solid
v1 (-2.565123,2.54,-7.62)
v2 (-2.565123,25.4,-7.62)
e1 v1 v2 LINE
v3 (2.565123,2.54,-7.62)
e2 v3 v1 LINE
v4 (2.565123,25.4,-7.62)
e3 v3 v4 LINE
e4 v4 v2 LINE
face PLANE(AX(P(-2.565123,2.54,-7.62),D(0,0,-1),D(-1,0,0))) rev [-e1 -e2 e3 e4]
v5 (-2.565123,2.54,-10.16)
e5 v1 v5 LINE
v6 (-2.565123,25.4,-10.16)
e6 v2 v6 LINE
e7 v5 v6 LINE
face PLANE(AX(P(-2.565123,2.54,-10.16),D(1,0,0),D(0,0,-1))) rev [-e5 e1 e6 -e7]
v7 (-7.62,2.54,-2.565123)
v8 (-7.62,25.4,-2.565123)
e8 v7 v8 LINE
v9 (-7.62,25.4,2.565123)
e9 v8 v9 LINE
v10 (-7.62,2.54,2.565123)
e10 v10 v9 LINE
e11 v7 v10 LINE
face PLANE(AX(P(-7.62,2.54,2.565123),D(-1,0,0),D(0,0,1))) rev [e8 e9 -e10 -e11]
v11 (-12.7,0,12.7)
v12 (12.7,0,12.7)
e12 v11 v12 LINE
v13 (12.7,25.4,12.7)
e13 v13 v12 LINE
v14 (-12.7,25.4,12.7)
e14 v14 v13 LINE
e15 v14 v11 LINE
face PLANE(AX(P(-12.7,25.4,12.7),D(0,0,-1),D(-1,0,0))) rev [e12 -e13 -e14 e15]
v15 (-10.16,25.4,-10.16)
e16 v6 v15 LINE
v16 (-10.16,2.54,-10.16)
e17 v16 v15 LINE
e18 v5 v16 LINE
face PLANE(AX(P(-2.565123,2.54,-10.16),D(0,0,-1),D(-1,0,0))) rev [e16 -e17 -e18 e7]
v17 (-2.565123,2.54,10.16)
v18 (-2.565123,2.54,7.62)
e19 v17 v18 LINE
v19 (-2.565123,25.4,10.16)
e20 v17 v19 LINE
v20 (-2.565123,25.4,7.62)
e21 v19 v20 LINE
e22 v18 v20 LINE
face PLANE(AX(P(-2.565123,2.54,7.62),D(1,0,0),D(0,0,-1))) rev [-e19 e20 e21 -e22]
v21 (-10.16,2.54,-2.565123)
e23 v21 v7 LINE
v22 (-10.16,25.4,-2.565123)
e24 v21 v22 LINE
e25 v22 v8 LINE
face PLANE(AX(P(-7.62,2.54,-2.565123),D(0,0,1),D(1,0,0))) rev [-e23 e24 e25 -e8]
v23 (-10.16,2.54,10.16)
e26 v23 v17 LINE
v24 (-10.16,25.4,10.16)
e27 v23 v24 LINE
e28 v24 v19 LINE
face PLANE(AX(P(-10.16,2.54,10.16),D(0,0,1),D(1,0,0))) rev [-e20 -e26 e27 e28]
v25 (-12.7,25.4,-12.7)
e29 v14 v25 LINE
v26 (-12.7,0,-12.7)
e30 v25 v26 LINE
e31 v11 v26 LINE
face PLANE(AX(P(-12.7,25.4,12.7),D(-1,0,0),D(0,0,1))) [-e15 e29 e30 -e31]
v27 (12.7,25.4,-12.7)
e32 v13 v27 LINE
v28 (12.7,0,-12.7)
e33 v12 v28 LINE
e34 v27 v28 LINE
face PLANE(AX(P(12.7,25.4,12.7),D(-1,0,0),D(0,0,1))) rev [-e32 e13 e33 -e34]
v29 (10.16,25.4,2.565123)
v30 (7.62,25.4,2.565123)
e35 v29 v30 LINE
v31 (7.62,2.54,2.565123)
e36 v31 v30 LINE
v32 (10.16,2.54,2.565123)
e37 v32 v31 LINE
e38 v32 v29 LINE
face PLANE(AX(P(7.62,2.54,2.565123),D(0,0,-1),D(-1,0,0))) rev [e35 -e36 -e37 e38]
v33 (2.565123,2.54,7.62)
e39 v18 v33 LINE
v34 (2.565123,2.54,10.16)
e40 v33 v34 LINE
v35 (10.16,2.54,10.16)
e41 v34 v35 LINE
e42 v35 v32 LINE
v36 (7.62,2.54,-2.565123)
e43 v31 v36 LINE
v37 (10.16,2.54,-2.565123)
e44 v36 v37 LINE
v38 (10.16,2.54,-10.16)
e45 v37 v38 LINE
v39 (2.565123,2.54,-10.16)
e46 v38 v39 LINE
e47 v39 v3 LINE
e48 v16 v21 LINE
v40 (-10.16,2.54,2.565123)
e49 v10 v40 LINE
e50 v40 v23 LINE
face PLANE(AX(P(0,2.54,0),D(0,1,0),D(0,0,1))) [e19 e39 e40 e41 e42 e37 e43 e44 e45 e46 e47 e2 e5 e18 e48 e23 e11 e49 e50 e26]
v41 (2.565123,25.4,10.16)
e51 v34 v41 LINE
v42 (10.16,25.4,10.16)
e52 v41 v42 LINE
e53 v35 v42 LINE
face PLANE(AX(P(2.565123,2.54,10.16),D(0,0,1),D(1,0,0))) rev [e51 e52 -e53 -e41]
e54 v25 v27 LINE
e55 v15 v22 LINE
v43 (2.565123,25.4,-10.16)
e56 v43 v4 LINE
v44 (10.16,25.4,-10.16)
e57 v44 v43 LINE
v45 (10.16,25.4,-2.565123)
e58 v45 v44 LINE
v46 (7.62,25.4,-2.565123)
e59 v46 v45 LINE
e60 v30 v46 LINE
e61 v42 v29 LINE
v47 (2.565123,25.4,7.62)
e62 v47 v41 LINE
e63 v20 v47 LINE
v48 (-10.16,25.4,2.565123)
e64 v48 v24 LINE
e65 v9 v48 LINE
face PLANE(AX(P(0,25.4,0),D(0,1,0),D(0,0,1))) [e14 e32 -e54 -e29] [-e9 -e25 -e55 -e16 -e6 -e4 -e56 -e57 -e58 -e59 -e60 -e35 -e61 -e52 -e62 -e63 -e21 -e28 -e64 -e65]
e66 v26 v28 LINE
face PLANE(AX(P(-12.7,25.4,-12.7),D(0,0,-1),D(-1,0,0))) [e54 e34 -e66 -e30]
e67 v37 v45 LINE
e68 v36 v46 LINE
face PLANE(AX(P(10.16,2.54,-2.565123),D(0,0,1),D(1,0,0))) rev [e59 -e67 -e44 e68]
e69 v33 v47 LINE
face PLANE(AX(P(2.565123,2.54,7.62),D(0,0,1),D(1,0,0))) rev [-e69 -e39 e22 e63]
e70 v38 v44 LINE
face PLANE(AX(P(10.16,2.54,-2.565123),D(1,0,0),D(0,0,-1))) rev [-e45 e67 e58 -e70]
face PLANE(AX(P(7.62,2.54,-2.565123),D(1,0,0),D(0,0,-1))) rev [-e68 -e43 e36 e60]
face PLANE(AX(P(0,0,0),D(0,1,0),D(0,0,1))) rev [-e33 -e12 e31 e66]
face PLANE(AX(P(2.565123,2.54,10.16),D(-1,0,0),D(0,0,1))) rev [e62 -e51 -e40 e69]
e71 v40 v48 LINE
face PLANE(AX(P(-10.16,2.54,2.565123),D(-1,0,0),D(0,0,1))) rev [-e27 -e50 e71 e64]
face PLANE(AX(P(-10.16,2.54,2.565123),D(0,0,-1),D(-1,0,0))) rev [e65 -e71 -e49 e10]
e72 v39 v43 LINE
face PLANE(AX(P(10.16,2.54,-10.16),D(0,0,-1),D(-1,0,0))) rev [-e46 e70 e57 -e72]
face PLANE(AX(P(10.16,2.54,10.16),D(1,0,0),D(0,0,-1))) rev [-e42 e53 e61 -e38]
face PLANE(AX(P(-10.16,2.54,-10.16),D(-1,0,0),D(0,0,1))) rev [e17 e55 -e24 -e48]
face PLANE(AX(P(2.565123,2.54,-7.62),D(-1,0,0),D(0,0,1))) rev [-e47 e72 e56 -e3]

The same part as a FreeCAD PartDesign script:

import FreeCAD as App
import Part
import Sketcher
from FreeCAD import Vector
Q = App.Units.Quantity


def add_polygon(sketch, points):
    """Adds a closed chain of lines whose ends are joined by coincident constraints."""
    first, n = sketch.GeometryCount, len(points)
    for a, b in zip(points, points[1:] + points[:1]):
        sketch.addGeometry(Part.LineSegment(App.Vector(*a, 0), App.Vector(*b, 0)), False)
    for i in range(n):
        sketch.addConstraint(Sketcher.Constraint("Coincident", first + i, 2, first + (i + 1) % n, 1))

doc = App.newDocument("Part")
body = doc.addObject("PartDesign::Body", "Body")

# Sketch on XZ plane
sketch1 = body.newObject("Sketcher::SketchObject", "Sketch")
sketch1.AttachmentSupport = (doc.getObject("XZ_Plane"), [""])
sketch1.MapMode = "FlatFace"
add_polygon(sketch1, [(-12.7, -12.7), (-12.7, 12.7), (12.7, 12.7), (12.7, -12.7)])  # lines 0-3
sketch1.addConstraint([
    Sketcher.Constraint("Vertical", 0),
    Sketcher.Constraint("Horizontal", 1),
    Sketcher.Constraint("Vertical", 2),
    Sketcher.Constraint("Horizontal", 3),
    Sketcher.Constraint("Symmetric", 0, 2, 2, 2, -1, 1),
    Sketcher.Constraint("Equal", 3, 0),
    Sketcher.Constraint("DistanceX", 1, 1, 1, 2, Q("1 in")),
])
pad1 = body.newObject("PartDesign::Pad", "Pad")
pad1.Profile = sketch1
pad1.Length = Q("1 in")
pad1.Reversed = True

# Sketch on XZ plane
sketch2 = body.newObject("Sketcher::SketchObject", "Sketch001")
sketch2.AttachmentSupport = (doc.getObject("XZ_Plane"), [""])
sketch2.MapMode = "FlatFace"
sketch2.AttachmentOffset = App.Placement(Vector(0, 0, -1 * 25.4), App.Rotation())
add_polygon(sketch2, [(7.62, -2.565123), (10.16, -2.565123), (10.16, -10.16), (2.565123, -10.16), (2.565123, -7.62), (-2.565123, -7.62), (-2.565123, -10.16), (-10.16, -10.16), (-10.16, -2.565123), (-7.62, -2.565123), (-7.62, 2.565123), (-10.16, 2.565123), (-10.16, 10.16), (-2.565123, 10.16), (-2.565123, 7.62), (2.565123, 7.62), (2.565123, 10.16), (10.16, 10.16), (10.16, 2.565123), (7.62, 2.565123)])  # lines 0-19
sketch2.addConstraint([
    Sketcher.Constraint("Horizontal", 0),
    Sketcher.Constraint("Vertical", 1),
    Sketcher.Constraint("Horizontal", 2),
    Sketcher.Constraint("Vertical", 3),
    Sketcher.Constraint("Horizontal", 4),
    Sketcher.Constraint("Vertical", 5),
    Sketcher.Constraint("Horizontal", 6),
    Sketcher.Constraint("Vertical", 7),
    Sketcher.Constraint("Horizontal", 8),
    Sketcher.Constraint("Vertical", 9),
    Sketcher.Constraint("Horizontal", 10),
    Sketcher.Constraint("Vertical", 11),
    Sketcher.Constraint("Horizontal", 12),
    Sketcher.Constraint("Vertical", 13),
    Sketcher.Constraint("Horizontal", 14),
    Sketcher.Constraint("Vertical", 15),
    Sketcher.Constraint("Horizontal", 16),
    Sketcher.Constraint("Vertical", 17),
    Sketcher.Constraint("Horizontal", 18),
    Sketcher.Constraint("Vertical", 19),
    Sketcher.Constraint("Symmetric", 0, 2, 10, 2, -1, 1),
    Sketcher.Constraint("Symmetric", 2, 2, 12, 2, -1, 1),
    Sketcher.Constraint("Symmetric", 4, 2, 14, 2, -1, 1),
    Sketcher.Constraint("Symmetric", 6, 2, 16, 2, -1, 1),
    Sketcher.Constraint("Symmetric", 8, 2, 18, 2, -1, 1),
    Sketcher.Constraint("Symmetric", 2, 2, 5, 2, -2),
    Sketcher.Constraint("Symmetric", 0, 2, 7, 2, -2),
    Sketcher.Constraint("Equal", 16, 1),
    Sketcher.Constraint("Equal", 18, 3),
    Sketcher.Constraint("Equal", 14, 9),
    Sketcher.Constraint("DistanceX", 0, 1, 0, 2, Q("0.1 in")),
    Sketcher.Constraint("DistanceX", -1, 1, 0, 2, Q("0.4 in")),
    Sketcher.Constraint("DistanceX", 2, 2, 2, 1, 7.594877),
])
pocket1 = body.newObject("PartDesign::Pocket", "Pocket")
pocket1.Profile = sketch2
pocket1.Length = Q("0.9 in")
pocket1.Reversed = True

doc.recompute()
